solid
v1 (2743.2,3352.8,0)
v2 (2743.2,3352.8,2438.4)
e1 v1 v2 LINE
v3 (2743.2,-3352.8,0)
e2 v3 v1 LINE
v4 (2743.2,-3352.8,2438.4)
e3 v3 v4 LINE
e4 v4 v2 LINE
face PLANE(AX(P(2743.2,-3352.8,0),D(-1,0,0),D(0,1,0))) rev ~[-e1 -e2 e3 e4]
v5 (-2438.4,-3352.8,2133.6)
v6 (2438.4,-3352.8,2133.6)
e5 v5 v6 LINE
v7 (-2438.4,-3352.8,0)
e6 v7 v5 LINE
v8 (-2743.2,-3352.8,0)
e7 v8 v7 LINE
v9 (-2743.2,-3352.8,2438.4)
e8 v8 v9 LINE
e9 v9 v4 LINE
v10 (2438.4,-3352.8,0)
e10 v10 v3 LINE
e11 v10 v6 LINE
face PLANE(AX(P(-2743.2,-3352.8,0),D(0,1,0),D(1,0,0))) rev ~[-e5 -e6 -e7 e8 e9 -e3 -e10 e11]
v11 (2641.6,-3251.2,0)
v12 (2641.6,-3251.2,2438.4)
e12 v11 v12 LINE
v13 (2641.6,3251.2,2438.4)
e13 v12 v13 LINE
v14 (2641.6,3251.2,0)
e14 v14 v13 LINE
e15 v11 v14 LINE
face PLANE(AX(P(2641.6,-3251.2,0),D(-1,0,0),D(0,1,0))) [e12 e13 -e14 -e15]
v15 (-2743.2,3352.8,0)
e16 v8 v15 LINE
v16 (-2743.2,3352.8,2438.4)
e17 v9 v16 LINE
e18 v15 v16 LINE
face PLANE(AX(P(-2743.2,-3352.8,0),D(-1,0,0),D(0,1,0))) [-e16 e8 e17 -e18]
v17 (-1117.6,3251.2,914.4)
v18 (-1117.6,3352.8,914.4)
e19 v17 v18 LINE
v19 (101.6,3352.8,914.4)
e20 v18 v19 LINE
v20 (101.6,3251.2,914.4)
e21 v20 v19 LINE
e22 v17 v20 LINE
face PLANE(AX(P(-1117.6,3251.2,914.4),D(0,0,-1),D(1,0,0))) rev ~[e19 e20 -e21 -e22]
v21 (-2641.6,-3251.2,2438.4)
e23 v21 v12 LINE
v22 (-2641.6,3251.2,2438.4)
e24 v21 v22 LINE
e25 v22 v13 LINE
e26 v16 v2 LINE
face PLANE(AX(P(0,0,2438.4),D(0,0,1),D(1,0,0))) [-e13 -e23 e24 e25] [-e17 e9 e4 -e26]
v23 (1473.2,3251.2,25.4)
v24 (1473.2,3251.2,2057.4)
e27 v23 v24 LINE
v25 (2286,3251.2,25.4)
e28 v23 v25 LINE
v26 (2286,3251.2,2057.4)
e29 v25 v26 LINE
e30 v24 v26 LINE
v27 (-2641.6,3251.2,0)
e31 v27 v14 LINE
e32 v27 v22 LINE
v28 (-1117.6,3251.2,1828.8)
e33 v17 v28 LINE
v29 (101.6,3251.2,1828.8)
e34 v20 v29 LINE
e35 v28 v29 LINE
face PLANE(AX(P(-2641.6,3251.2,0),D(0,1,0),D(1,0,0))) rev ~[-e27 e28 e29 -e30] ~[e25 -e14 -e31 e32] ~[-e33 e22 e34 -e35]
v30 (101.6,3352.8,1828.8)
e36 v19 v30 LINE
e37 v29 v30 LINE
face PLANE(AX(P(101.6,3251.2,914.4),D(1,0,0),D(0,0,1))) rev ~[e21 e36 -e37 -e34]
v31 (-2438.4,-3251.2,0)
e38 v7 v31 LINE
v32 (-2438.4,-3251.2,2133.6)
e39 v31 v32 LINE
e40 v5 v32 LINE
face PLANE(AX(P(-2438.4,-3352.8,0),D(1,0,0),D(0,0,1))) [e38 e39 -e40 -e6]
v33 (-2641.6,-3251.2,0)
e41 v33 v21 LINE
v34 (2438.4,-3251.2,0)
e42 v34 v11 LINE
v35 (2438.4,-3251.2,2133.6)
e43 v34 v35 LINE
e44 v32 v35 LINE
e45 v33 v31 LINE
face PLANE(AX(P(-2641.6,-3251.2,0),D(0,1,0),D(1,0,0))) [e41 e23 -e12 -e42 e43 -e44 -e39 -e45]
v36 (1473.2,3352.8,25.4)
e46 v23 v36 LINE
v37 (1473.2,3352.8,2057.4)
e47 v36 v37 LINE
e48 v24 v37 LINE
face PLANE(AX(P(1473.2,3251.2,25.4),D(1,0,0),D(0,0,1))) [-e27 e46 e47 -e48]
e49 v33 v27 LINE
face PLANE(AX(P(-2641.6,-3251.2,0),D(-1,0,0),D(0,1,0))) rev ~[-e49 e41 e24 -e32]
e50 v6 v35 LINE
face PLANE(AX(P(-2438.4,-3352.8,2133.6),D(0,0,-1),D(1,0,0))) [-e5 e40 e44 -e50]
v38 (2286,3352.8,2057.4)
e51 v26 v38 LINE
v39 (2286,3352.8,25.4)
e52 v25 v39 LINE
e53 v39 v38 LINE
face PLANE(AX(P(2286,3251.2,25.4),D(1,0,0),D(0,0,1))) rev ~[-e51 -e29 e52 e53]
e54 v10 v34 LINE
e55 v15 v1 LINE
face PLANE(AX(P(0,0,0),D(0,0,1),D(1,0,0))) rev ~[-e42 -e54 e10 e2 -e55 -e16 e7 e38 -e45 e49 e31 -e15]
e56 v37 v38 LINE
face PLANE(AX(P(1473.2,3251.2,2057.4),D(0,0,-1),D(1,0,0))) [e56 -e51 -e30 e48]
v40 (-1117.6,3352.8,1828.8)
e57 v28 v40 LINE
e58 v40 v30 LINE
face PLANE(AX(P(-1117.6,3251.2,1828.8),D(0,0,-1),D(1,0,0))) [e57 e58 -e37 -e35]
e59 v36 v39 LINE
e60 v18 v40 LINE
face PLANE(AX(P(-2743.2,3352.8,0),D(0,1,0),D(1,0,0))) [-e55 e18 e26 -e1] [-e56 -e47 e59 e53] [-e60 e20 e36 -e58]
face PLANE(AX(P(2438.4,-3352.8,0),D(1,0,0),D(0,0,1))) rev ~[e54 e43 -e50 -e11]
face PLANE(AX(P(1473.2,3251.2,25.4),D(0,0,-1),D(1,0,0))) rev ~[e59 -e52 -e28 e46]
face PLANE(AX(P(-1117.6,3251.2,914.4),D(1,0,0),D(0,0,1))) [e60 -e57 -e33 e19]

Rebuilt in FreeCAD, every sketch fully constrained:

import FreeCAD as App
import Part
import Sketcher

V = App.Vector
Q = App.Units.Quantity


def add_polygon(sketch, points):
    """Adds a closed chain of lines whose ends are joined by coincident constraints."""
    first, n = sketch.GeometryCount, len(points)
    for a, b in zip(points, points[1:] + points[:1]):
        sketch.addGeometry(Part.LineSegment(App.Vector(*a, 0), App.Vector(*b, 0)), False)
    for i in range(n):
        sketch.addConstraint(Sketcher.Constraint("Coincident", first + i, 2, first + (i + 1) % n, 1))

doc = App.newDocument("Part")
body = doc.addObject("PartDesign::Body", "Body")

# Sketch on XY plane
sketch1 = doc.addObject("Sketcher::SketchObject", "Sketch")
body.addObject(sketch1)
sketch1.AttachmentSupport = (doc.XY_Plane, [""])
sketch1.MapMode = "FlatFace"
add_polygon(sketch1, [(-2743.2, 3352.8), (-2743.2, -3352.8), (2743.2, -3352.8), (2743.2, 3352.8)])  # lines 0-3
add_polygon(sketch1, [(2641.6, -3251.2), (-2641.6, -3251.2), (-2641.6, 3251.2), (2641.6, 3251.2)])  # lines 4-7
sketch1.addConstraint([
    Sketcher.Constraint("Vertical", 0),
    Sketcher.Constraint("Horizontal", 1),
    Sketcher.Constraint("Vertical", 2),
    Sketcher.Constraint("Horizontal", 3),
    Sketcher.Constraint("Horizontal", 4),
    Sketcher.Constraint("Vertical", 5),
    Sketcher.Constraint("Horizontal", 6),
    Sketcher.Constraint("Vertical", 7),
    Sketcher.Constraint("Symmetric", 0, 2, 2, 2, -1, 1),
    Sketcher.Constraint("Symmetric", 4, 2, 6, 2, -1, 1),
    Sketcher.Constraint("DistanceX", 1, 1, 1, 2, Q("216 in")),
    Sketcher.Constraint("DistanceX", 4, 2, 4, 1, Q("208 in")),
    Sketcher.Constraint("DistanceY", 0, 2, 0, 1, Q("264 in")),
    Sketcher.Constraint("DistanceY", 5, 1, 5, 2, Q("256 in")),
])
pad1 = doc.addObject("PartDesign::Pad", "Pad")
body.addObject(pad1)
pad1.Profile = sketch1
pad1.Length = Q("96 in")

# Sketch on XZ plane
sketch2 = doc.addObject("Sketcher::SketchObject", "Sketch001")
body.addObject(sketch2)
sketch2.AttachmentSupport = (doc.XZ_Plane, [""])
sketch2.MapMode = "FlatFace"
sketch2.AttachmentOffset = App.Placement(V(0, 0, -128 * 25.4), App.Rotation())
add_polygon(sketch2, [(-1117.6, 1828.8), (-1117.6, 914.4), (101.6, 914.4), (101.6, 1828.8)])  # lines 0-3
sketch2.addConstraint([
    Sketcher.Constraint("Vertical", 0),
    Sketcher.Constraint("Horizontal", 1),
    Sketcher.Constraint("Vertical", 2),
    Sketcher.Constraint("Horizontal", 3),
    Sketcher.Constraint("DistanceX", 1, 1, 1, 2, Q("48 in")),
    Sketcher.Constraint("DistanceY", 0, 2, 0, 1, Q("36 in")),
    Sketcher.Constraint("DistanceX", 0, 2, -1, 1, Q("44 in")),
    Sketcher.Constraint("DistanceY", -1, 1, 0, 2, Q("36 in")),
])
pocket1 = doc.addObject("PartDesign::Pocket", "Pocket")
body.addObject(pocket1)
pocket1.Profile = sketch2
pocket1.Type = "ThroughAll"

# Sketch on XZ plane
sketch3 = doc.addObject("Sketcher::SketchObject", "Sketch002")
body.addObject(sketch3)
sketch3.AttachmentSupport = (doc.XZ_Plane, [""])
sketch3.MapMode = "FlatFace"
sketch3.AttachmentOffset = App.Placement(V(0, 0, -128 * 25.4), App.Rotation())
add_polygon(sketch3, [(1473.2, 2057.4), (1473.2, 25.4), (2286, 25.4), (2286, 2057.4)])  # lines 0-3
sketch3.addConstraint([
    Sketcher.Constraint("Vertical", 0),
    Sketcher.Constraint("Horizontal", 1),
    Sketcher.Constraint("Vertical", 2),
    Sketcher.Constraint("Horizontal", 3),
    Sketcher.Constraint("DistanceX", 1, 1, 1, 2, Q("32 in")),
    Sketcher.Constraint("DistanceY", 0, 2, 0, 1, Q("80 in")),
    Sketcher.Constraint("DistanceX", -1, 1, 0, 2, Q("58 in")),
    Sketcher.Constraint("DistanceY", -1, 1, 0, 2, Q("1 in")),
])
pocket2 = doc.addObject("PartDesign::Pocket", "Pocket001")
body.addObject(pocket2)
pocket2.Profile = sketch3
pocket2.Type = "ThroughAll"

# Sketch on XZ plane
sketch4 = doc.addObject("Sketcher::SketchObject", "Sketch003")
body.addObject(sketch4)
sketch4.AttachmentSupport = (doc.XZ_Plane, [""])
sketch4.MapMode = "FlatFace"
sketch4.AttachmentOffset = App.Placement(V(0, 0, 132 * 25.4), App.Rotation())
add_polygon(sketch4, [(-2438.4, 2133.6), (-2438.4, 0), (2438.4, 0), (2438.4, 2133.6)])  # lines 0-3
sketch4.addConstraint([
    Sketcher.Constraint("Vertical", 0),
    Sketcher.Constraint("Horizontal", 1),
    Sketcher.Constraint("Vertical", 2),
    Sketcher.Constraint("Horizontal", 3),
    Sketcher.Constraint("Symmetric", 0, 2, 1, 2, -1, 1),
    Sketcher.Constraint("DistanceX", 1, 1, 1, 2, Q("192 in")),
    Sketcher.Constraint("DistanceY", 0, 2, 0, 1, Q("84 in")),
])
pocket3 = doc.addObject("PartDesign::Pocket", "Pocket002")
body.addObject(pocket3)
pocket3.Profile = sketch4
pocket3.Length = Q("4 in")

doc.recompute()
